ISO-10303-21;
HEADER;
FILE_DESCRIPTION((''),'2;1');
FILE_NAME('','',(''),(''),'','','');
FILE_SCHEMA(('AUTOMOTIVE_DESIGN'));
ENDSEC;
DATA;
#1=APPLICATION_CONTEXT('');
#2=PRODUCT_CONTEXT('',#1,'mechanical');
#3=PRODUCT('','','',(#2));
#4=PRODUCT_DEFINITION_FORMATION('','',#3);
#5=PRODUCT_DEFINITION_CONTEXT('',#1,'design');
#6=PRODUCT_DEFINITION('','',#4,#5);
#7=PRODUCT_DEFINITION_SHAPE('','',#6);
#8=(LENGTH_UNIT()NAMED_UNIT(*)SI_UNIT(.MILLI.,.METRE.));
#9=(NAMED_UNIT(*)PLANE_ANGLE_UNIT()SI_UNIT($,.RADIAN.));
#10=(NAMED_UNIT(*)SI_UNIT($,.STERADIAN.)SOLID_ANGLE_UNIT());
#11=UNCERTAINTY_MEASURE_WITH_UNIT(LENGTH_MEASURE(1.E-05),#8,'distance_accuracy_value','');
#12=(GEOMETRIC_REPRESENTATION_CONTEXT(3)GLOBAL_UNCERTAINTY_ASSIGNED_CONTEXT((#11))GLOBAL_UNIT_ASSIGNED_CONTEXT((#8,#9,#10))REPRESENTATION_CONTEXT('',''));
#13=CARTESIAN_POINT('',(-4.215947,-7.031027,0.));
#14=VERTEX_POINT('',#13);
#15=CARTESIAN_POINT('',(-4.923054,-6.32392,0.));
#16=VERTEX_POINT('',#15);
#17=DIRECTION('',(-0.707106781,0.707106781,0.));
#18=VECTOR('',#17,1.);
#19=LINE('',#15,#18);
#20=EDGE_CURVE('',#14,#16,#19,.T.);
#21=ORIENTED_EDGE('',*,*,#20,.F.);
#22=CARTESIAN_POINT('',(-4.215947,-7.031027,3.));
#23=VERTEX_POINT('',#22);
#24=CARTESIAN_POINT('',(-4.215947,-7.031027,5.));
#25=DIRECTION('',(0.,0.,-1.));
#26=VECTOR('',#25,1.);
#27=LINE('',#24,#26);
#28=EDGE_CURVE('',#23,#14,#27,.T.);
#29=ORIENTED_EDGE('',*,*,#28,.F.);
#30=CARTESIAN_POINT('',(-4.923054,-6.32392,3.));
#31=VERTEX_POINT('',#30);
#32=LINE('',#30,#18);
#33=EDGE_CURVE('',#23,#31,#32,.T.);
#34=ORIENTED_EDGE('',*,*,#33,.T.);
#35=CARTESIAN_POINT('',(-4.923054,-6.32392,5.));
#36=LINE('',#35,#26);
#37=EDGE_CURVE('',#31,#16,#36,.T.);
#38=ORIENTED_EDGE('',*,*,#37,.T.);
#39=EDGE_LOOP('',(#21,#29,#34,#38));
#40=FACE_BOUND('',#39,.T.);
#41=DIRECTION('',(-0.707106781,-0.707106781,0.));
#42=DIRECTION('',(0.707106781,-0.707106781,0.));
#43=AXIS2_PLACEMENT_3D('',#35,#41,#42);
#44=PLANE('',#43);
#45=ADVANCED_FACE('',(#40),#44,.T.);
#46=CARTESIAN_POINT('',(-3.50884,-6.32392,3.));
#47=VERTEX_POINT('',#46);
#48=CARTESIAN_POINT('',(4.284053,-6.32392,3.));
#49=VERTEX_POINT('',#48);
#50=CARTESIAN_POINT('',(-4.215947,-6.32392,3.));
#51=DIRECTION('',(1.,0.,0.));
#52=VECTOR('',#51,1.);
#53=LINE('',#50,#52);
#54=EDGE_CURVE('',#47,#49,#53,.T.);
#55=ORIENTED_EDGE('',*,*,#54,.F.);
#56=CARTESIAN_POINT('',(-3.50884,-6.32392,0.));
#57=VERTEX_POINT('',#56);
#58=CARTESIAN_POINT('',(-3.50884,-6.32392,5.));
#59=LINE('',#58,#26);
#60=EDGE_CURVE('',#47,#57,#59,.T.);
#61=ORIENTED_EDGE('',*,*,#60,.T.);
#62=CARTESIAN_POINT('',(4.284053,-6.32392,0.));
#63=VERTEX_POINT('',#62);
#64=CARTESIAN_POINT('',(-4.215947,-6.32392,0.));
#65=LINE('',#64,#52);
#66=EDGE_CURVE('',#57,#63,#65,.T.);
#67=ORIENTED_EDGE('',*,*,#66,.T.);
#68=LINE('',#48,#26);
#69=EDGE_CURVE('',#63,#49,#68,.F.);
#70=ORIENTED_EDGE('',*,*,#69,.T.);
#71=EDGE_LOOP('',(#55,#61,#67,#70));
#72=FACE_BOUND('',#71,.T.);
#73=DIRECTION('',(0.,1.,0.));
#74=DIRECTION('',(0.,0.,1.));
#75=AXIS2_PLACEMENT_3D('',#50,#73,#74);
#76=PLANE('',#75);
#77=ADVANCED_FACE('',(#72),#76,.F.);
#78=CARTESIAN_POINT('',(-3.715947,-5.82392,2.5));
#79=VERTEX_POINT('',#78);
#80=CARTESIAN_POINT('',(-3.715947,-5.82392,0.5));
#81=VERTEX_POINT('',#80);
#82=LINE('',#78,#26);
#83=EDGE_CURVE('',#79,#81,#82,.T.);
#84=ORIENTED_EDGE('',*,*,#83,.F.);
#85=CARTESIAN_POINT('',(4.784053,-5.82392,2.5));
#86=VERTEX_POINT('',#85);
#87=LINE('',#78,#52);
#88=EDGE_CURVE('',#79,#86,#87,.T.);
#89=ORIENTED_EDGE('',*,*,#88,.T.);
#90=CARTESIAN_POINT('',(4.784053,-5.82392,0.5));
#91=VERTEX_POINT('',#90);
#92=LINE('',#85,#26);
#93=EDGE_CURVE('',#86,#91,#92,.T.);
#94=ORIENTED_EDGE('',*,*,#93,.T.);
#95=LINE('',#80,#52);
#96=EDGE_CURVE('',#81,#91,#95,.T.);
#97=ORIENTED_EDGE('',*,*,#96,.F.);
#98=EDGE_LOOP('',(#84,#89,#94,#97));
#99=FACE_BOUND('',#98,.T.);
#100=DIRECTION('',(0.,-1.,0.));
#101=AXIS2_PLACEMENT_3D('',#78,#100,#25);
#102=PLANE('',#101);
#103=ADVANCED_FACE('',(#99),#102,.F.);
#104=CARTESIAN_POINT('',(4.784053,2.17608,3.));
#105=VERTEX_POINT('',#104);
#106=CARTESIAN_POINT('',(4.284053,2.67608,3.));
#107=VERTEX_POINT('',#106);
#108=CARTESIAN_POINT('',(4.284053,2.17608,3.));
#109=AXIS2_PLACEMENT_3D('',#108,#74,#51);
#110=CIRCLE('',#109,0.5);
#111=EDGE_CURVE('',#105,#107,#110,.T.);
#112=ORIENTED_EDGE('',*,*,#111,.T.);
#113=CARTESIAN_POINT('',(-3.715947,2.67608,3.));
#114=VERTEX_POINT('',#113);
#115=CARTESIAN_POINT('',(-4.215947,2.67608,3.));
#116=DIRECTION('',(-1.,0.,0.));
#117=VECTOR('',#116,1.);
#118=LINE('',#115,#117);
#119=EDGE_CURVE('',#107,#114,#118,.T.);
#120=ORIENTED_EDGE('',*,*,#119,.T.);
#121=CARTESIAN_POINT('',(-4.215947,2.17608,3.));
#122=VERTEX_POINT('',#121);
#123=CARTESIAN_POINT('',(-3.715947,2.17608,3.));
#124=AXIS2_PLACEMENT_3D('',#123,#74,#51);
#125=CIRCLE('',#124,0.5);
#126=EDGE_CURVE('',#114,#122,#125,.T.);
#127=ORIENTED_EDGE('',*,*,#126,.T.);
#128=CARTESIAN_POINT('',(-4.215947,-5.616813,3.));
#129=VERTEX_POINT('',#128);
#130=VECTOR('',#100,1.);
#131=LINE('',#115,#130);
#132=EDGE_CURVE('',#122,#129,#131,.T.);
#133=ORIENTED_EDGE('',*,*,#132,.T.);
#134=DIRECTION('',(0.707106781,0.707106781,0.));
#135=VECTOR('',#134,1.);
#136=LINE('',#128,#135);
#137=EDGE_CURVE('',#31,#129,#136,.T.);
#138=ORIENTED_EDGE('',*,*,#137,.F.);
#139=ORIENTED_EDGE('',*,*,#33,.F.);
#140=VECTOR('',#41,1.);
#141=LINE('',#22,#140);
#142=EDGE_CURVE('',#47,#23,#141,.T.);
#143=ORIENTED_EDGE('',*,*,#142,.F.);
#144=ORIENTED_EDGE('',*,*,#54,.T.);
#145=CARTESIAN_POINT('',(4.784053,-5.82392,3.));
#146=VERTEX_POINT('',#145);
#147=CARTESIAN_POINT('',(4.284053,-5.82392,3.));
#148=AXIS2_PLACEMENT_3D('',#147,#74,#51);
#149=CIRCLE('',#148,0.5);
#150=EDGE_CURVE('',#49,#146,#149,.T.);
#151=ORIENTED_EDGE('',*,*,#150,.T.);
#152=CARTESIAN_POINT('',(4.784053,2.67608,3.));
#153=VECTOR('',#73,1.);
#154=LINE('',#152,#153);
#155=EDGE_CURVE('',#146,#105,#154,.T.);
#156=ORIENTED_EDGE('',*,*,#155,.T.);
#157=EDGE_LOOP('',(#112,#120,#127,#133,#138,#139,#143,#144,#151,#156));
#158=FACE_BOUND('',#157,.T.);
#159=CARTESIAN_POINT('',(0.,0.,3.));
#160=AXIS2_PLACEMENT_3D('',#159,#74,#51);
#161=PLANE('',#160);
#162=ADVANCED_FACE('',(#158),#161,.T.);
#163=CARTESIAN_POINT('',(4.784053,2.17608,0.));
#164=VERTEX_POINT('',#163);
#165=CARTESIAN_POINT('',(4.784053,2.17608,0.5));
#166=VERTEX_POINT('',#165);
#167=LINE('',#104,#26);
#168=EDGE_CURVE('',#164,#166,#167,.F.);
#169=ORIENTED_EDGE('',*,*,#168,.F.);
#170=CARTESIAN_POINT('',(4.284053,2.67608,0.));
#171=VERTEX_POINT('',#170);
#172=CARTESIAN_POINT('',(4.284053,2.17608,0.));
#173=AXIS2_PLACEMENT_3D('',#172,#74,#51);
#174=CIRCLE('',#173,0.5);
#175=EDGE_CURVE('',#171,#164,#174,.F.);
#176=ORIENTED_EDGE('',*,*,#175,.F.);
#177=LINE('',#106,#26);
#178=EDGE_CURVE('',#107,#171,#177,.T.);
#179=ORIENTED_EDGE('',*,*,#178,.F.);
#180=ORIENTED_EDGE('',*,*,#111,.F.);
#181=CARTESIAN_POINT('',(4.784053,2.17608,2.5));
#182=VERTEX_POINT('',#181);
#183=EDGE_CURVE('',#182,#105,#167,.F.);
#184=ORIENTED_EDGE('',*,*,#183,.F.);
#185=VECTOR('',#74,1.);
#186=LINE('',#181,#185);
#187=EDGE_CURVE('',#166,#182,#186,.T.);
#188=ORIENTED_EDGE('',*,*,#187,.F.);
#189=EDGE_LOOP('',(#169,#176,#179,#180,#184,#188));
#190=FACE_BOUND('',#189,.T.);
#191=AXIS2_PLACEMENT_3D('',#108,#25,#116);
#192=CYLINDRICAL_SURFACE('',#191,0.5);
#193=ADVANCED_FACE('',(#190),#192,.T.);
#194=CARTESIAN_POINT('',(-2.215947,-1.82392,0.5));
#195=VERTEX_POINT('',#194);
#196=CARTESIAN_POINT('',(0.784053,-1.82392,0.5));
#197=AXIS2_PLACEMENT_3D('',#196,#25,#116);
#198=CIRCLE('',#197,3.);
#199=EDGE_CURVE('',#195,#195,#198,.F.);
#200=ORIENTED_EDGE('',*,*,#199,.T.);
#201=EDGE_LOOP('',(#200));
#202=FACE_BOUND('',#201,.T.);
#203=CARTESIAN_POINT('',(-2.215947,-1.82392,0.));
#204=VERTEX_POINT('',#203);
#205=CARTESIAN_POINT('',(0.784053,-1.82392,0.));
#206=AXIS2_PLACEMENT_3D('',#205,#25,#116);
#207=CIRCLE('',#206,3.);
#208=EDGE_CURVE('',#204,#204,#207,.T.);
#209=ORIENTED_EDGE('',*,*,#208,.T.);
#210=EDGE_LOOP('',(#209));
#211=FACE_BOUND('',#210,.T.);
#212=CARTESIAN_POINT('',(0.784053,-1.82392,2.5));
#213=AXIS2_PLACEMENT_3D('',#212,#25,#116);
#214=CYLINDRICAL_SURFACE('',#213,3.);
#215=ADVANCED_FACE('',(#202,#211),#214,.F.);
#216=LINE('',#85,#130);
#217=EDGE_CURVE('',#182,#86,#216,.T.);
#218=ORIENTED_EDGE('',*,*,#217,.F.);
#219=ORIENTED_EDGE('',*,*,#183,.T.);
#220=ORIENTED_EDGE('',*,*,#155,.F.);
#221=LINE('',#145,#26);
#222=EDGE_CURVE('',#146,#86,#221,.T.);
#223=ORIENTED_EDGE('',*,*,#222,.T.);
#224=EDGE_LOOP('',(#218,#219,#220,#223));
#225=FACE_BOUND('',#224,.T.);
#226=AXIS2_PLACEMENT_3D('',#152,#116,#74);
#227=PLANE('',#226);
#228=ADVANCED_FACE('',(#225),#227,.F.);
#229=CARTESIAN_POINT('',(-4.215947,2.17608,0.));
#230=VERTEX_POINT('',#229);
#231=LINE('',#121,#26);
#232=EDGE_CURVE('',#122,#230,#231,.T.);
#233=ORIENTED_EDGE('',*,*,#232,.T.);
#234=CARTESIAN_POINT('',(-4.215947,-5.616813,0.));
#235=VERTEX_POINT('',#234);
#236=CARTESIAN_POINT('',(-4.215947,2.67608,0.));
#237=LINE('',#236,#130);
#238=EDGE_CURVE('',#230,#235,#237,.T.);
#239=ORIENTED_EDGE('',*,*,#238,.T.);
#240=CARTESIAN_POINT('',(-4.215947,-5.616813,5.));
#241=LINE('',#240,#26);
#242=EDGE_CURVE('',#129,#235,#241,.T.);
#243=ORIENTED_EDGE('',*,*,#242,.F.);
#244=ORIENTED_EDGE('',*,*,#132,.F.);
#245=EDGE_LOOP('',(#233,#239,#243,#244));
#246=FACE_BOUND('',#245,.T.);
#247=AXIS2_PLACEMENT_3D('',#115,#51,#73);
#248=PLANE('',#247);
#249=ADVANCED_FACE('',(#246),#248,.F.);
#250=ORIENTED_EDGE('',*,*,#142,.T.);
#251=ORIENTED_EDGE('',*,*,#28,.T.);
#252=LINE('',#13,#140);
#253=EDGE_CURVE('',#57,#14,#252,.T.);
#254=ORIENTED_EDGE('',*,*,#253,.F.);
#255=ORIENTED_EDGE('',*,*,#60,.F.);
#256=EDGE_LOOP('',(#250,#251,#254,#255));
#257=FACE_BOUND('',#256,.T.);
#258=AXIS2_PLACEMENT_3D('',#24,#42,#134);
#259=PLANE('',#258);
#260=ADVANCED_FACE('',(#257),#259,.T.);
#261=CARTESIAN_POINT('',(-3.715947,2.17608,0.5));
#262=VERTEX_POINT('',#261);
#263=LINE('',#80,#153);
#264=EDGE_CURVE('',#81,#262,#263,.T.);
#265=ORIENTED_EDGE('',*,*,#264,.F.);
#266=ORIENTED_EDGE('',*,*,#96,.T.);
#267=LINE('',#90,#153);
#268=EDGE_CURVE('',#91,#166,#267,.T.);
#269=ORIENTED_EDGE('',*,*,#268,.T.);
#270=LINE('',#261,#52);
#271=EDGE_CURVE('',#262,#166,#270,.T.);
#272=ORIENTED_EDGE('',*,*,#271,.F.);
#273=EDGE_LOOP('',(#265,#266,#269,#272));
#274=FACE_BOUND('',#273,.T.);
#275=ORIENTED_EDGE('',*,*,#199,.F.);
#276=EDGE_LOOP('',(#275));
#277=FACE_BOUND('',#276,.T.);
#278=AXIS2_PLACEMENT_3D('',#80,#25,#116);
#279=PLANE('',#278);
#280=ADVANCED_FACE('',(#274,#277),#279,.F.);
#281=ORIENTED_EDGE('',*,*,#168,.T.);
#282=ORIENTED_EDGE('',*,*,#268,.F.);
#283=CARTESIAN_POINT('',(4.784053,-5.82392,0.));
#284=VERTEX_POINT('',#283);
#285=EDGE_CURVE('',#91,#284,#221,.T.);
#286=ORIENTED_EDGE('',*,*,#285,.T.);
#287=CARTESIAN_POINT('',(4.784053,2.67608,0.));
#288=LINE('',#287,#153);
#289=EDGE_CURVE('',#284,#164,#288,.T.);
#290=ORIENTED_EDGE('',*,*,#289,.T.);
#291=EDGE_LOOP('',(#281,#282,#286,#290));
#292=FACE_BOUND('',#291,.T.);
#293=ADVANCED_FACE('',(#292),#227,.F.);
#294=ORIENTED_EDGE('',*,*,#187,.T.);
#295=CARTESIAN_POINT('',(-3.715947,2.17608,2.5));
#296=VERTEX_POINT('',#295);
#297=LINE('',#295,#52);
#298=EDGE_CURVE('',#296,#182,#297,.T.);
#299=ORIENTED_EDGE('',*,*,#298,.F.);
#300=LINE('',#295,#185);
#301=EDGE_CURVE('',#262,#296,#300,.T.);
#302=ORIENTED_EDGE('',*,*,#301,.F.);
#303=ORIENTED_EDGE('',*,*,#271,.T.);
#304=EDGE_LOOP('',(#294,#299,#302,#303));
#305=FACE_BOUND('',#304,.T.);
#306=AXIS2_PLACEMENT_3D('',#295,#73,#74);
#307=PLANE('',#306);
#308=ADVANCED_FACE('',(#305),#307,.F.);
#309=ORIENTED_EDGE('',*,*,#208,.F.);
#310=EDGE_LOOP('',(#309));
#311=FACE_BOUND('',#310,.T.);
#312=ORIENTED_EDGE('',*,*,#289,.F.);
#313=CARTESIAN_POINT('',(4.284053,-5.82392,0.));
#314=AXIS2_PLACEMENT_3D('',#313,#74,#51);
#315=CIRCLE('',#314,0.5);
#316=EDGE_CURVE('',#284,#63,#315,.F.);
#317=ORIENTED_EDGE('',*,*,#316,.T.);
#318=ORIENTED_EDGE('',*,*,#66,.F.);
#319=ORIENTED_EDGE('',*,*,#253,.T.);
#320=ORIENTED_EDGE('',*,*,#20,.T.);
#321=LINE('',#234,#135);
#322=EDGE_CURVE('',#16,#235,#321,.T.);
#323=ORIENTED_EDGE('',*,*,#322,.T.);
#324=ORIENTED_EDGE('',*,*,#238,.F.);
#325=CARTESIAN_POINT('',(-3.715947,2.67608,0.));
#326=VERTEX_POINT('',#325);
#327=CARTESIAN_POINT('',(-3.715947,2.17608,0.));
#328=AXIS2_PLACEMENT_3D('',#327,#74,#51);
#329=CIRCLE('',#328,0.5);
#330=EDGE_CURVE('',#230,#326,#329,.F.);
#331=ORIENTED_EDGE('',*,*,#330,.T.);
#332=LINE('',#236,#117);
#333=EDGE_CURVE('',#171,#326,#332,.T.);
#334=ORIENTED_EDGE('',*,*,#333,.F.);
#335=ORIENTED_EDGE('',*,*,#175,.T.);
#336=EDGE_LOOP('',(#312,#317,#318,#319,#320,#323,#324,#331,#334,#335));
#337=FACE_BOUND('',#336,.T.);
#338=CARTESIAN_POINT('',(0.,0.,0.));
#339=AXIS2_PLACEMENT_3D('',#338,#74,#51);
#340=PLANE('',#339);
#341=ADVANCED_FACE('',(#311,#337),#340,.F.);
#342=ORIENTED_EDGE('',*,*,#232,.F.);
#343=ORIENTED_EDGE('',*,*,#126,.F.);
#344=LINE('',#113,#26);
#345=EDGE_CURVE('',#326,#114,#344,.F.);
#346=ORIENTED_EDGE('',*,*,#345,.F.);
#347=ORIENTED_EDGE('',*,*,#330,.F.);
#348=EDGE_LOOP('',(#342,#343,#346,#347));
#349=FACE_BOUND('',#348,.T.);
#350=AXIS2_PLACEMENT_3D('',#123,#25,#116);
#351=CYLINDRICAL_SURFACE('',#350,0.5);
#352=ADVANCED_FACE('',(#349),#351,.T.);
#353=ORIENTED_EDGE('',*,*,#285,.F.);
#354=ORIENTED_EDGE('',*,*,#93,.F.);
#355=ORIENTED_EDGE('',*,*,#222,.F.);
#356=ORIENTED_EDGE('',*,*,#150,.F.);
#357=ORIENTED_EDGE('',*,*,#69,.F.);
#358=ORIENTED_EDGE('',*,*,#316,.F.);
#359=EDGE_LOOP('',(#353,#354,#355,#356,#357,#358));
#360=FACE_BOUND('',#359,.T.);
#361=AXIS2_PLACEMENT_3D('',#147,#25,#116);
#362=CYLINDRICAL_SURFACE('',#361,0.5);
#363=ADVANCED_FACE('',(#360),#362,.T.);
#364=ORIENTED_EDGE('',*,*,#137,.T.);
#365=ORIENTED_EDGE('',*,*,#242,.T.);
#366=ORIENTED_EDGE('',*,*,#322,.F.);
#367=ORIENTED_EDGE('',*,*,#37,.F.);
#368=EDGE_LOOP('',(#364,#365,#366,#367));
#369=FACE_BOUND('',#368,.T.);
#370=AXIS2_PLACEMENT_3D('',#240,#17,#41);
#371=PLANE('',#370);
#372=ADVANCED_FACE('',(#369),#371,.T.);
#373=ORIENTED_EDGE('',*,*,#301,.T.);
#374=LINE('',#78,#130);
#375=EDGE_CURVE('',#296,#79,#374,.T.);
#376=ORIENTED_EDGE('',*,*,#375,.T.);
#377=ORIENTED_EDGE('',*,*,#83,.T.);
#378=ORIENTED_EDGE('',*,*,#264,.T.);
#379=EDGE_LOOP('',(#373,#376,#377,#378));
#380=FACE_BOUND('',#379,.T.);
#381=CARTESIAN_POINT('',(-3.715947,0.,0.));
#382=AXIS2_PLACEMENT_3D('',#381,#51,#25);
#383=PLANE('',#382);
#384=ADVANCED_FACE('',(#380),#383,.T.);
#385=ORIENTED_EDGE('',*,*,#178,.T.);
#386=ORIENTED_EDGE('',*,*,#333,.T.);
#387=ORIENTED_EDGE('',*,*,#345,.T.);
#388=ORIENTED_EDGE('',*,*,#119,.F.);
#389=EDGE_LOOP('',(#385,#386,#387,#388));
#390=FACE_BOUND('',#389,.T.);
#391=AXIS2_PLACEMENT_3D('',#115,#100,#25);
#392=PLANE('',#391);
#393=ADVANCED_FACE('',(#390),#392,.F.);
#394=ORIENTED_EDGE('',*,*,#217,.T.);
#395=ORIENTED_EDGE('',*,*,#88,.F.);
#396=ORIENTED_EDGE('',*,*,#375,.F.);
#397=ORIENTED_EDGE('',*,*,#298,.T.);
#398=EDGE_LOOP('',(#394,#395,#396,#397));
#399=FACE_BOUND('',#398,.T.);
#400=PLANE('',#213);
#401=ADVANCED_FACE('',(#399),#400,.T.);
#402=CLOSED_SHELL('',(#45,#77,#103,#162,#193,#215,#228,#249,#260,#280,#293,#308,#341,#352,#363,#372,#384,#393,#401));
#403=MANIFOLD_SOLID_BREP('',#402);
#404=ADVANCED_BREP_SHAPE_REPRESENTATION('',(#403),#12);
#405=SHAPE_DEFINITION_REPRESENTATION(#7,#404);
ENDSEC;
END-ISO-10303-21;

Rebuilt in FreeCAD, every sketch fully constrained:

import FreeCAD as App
import Part
import Sketcher


def edges_at(feature, points):
    """Names of the edges that pass closest to the given points."""
    edges = feature.Shape.Edges
    near = lambda p: min(range(len(edges)), key=lambda i: edges[i].distToShape(Part.Vertex(*p))[0])
    return sorted({f"Edge{near(p) + 1}" for p in points})


def add_polygon(sketch, points):
    """Adds a closed chain of lines whose ends are joined by coincident constraints."""
    first, n = sketch.GeometryCount, len(points)
    for a, b in zip(points, points[1:] + points[:1]):
        sketch.addGeometry(Part.LineSegment(App.Vector(*a, 0), App.Vector(*b, 0)), False)
    for i in range(n):
        sketch.addConstraint(Sketcher.Constraint("Coincident", first + i, 2, first + (i + 1) % n, 1))

doc = App.newDocument("Part")
params = doc.addObject("Spreadsheet::Sheet", "Params")
for row, (alias, value) in enumerate([
    ("sketch1_width", "9 mm"),
    ("pad1_length", "3 mm"),
    ("fillet_radius", "0.5 mm"),
    ("sketch2_diameter", "6 mm"),
    ("pocket1_length", "2.5 mm"),
    ("sketch3_width", "8 mm"),
    ("sketch3_height", "2 mm"),
    ("pocket2_length", "8.5 mm"),
    ("sketch4_length", "1 mm"),
    ("pad2_length", "3 mm"),
], start=1):
    params.set(f"A{row}", alias)
    params.set(f"B{row}", "=" + value)
    params.setAlias(f"B{row}", alias)

body = doc.addObject("PartDesign::Body", "Body")

# Sketch on XY plane
sketch1 = body.newObject("Sketcher::SketchObject", "Sketch")
sketch1.AttachmentSupport = (doc.getObject("XY_Plane"), [""])
sketch1.MapMode = "FlatFace"
add_polygon(sketch1, [(-4, 3), (-4, -6), (5, -6), (5, 3)])  # lines 0-3
sketch1.addConstraint([
    Sketcher.Constraint("Vertical", 0),
    Sketcher.Constraint("Horizontal", 1),
    Sketcher.Constraint("Vertical", 2),
    Sketcher.Constraint("Horizontal", 3),
    Sketcher.Constraint("Equal", 3, 0),
    Sketcher.Constraint("DistanceX", 1, 1, 1, 2, 9.0),
    Sketcher.Constraint("DistanceY", 0, 2, -1, 1, 6.32392),
    Sketcher.Constraint("DistanceX", 0, 2, -1, 1, 4.215947),
])
sketch1.setExpression("Constraints[9]", "Params.sketch1_width")
pad1 = body.newObject("PartDesign::Pad", "Pad")
pad1.Profile = sketch1
pad1.setExpression("Length", "Params.pad1_length")
doc.recompute()

fillet = body.newObject("PartDesign::Fillet", "Fillet")
fillet.Base = (pad1, edges_at(pad1, [
    (-4.216, 2.676, 1.5),
    (4.784, 2.676, 1.5),
    (4.784, -6.324, 1.5),
    (-4.216, -6.324, 1.5),
]))
fillet.setExpression("Radius", "Params.fillet_radius")

# Sketch on XY plane
sketch2 = body.newObject("Sketcher::SketchObject", "Sketch001")
sketch2.AttachmentSupport = (doc.getObject("XY_Plane"), [""])
sketch2.MapMode = "FlatFace"
sketch2.addGeometry(Part.Circle(App.Vector(0.8, -1.8, 0), App.Vector(0, 0, 1), 3), False)
sketch2.addConstraint([
    Sketcher.Constraint("Diameter", 0, 6.0),
    Sketcher.Constraint("DistanceY", 0, 3, -1, 1, 1.82392),
    Sketcher.Constraint("DistanceX", -1, 1, 0, 3, 0.784053),
])
sketch2.setExpression("Constraints[0]", "Params.sketch2_diameter")
pocket1 = body.newObject("PartDesign::Pocket", "Pocket")
pocket1.Profile = sketch2
pocket1.setExpression("Length", "Params.pocket1_length")
pocket1.Reversed = True

# Sketch on YZ plane
sketch3 = body.newObject("Sketcher::SketchObject", "Sketch002")
sketch3.AttachmentSupport = (doc.getObject("YZ_Plane"), [""])
sketch3.MapMode = "FlatFace"
sketch3.AttachmentOffset = App.Placement(App.Vector(0, 0, 4.784053), App.Rotation())
add_polygon(sketch3, [(2.2, 2.5), (-5.8, 2.5), (-5.8, 0.5), (2.2, 0.5)])  # lines 0-3
sketch3.addConstraint([
    Sketcher.Constraint("Horizontal", 0),
    Sketcher.Constraint("Vertical", 1),
    Sketcher.Constraint("Horizontal", 2),
    Sketcher.Constraint("Vertical", 3),
    Sketcher.Constraint("DistanceX", 0, 2, 0, 1, 8.0),
    Sketcher.Constraint("DistanceY", 1, 2, 1, 1, 2.0),
    Sketcher.Constraint("DistanceY", -1, 1, 0, 2, 2.5),
    Sketcher.Constraint("DistanceX", 0, 2, -1, 1, 5.82392),
])
sketch3.setExpression("Constraints[8]", "Params.sketch3_width")
sketch3.setExpression("Constraints[9]", "Params.sketch3_height")
pocket2 = body.newObject("PartDesign::Pocket", "Pocket001")
pocket2.Profile = sketch3
pocket2.setExpression("Length", "Params.pocket2_length")

# Sketch on XY plane
sketch4 = body.newObject("Sketcher::SketchObject", "Sketch003")
sketch4.AttachmentSupport = (doc.getObject("XY_Plane"), [""])
sketch4.MapMode = "FlatFace"
add_polygon(sketch4, [(-4.2, -5.6), (-3.5, -6.3), (-4.2, -7), (-4.9, -6.3)])  # lines 0-3
sketch4.addConstraint([
    Sketcher.Constraint("Perpendicular", 0, 1),
    Sketcher.Constraint("Perpendicular", 1, 2),
    Sketcher.Constraint("Perpendicular", 2, 3),
    Sketcher.Constraint("Horizontal", 0, 2, 2, 2),
    Sketcher.Constraint("Vertical", 1, 2, 3, 2),
    Sketcher.Constraint("Distance", 0, 1.0),
    Sketcher.Constraint("DistanceX", 0, 2, -1, 1, 3.50884),
    Sketcher.Constraint("DistanceY", 0, 2, -1, 1, 6.32392),
])
sketch4.setExpression("Constraints[9]", "Params.sketch4_length")
pad2 = body.newObject("PartDesign::Pad", "Pad001")
pad2.Profile = sketch4
pad2.setExpression("Length", "Params.pad2_length")

doc.recompute()
